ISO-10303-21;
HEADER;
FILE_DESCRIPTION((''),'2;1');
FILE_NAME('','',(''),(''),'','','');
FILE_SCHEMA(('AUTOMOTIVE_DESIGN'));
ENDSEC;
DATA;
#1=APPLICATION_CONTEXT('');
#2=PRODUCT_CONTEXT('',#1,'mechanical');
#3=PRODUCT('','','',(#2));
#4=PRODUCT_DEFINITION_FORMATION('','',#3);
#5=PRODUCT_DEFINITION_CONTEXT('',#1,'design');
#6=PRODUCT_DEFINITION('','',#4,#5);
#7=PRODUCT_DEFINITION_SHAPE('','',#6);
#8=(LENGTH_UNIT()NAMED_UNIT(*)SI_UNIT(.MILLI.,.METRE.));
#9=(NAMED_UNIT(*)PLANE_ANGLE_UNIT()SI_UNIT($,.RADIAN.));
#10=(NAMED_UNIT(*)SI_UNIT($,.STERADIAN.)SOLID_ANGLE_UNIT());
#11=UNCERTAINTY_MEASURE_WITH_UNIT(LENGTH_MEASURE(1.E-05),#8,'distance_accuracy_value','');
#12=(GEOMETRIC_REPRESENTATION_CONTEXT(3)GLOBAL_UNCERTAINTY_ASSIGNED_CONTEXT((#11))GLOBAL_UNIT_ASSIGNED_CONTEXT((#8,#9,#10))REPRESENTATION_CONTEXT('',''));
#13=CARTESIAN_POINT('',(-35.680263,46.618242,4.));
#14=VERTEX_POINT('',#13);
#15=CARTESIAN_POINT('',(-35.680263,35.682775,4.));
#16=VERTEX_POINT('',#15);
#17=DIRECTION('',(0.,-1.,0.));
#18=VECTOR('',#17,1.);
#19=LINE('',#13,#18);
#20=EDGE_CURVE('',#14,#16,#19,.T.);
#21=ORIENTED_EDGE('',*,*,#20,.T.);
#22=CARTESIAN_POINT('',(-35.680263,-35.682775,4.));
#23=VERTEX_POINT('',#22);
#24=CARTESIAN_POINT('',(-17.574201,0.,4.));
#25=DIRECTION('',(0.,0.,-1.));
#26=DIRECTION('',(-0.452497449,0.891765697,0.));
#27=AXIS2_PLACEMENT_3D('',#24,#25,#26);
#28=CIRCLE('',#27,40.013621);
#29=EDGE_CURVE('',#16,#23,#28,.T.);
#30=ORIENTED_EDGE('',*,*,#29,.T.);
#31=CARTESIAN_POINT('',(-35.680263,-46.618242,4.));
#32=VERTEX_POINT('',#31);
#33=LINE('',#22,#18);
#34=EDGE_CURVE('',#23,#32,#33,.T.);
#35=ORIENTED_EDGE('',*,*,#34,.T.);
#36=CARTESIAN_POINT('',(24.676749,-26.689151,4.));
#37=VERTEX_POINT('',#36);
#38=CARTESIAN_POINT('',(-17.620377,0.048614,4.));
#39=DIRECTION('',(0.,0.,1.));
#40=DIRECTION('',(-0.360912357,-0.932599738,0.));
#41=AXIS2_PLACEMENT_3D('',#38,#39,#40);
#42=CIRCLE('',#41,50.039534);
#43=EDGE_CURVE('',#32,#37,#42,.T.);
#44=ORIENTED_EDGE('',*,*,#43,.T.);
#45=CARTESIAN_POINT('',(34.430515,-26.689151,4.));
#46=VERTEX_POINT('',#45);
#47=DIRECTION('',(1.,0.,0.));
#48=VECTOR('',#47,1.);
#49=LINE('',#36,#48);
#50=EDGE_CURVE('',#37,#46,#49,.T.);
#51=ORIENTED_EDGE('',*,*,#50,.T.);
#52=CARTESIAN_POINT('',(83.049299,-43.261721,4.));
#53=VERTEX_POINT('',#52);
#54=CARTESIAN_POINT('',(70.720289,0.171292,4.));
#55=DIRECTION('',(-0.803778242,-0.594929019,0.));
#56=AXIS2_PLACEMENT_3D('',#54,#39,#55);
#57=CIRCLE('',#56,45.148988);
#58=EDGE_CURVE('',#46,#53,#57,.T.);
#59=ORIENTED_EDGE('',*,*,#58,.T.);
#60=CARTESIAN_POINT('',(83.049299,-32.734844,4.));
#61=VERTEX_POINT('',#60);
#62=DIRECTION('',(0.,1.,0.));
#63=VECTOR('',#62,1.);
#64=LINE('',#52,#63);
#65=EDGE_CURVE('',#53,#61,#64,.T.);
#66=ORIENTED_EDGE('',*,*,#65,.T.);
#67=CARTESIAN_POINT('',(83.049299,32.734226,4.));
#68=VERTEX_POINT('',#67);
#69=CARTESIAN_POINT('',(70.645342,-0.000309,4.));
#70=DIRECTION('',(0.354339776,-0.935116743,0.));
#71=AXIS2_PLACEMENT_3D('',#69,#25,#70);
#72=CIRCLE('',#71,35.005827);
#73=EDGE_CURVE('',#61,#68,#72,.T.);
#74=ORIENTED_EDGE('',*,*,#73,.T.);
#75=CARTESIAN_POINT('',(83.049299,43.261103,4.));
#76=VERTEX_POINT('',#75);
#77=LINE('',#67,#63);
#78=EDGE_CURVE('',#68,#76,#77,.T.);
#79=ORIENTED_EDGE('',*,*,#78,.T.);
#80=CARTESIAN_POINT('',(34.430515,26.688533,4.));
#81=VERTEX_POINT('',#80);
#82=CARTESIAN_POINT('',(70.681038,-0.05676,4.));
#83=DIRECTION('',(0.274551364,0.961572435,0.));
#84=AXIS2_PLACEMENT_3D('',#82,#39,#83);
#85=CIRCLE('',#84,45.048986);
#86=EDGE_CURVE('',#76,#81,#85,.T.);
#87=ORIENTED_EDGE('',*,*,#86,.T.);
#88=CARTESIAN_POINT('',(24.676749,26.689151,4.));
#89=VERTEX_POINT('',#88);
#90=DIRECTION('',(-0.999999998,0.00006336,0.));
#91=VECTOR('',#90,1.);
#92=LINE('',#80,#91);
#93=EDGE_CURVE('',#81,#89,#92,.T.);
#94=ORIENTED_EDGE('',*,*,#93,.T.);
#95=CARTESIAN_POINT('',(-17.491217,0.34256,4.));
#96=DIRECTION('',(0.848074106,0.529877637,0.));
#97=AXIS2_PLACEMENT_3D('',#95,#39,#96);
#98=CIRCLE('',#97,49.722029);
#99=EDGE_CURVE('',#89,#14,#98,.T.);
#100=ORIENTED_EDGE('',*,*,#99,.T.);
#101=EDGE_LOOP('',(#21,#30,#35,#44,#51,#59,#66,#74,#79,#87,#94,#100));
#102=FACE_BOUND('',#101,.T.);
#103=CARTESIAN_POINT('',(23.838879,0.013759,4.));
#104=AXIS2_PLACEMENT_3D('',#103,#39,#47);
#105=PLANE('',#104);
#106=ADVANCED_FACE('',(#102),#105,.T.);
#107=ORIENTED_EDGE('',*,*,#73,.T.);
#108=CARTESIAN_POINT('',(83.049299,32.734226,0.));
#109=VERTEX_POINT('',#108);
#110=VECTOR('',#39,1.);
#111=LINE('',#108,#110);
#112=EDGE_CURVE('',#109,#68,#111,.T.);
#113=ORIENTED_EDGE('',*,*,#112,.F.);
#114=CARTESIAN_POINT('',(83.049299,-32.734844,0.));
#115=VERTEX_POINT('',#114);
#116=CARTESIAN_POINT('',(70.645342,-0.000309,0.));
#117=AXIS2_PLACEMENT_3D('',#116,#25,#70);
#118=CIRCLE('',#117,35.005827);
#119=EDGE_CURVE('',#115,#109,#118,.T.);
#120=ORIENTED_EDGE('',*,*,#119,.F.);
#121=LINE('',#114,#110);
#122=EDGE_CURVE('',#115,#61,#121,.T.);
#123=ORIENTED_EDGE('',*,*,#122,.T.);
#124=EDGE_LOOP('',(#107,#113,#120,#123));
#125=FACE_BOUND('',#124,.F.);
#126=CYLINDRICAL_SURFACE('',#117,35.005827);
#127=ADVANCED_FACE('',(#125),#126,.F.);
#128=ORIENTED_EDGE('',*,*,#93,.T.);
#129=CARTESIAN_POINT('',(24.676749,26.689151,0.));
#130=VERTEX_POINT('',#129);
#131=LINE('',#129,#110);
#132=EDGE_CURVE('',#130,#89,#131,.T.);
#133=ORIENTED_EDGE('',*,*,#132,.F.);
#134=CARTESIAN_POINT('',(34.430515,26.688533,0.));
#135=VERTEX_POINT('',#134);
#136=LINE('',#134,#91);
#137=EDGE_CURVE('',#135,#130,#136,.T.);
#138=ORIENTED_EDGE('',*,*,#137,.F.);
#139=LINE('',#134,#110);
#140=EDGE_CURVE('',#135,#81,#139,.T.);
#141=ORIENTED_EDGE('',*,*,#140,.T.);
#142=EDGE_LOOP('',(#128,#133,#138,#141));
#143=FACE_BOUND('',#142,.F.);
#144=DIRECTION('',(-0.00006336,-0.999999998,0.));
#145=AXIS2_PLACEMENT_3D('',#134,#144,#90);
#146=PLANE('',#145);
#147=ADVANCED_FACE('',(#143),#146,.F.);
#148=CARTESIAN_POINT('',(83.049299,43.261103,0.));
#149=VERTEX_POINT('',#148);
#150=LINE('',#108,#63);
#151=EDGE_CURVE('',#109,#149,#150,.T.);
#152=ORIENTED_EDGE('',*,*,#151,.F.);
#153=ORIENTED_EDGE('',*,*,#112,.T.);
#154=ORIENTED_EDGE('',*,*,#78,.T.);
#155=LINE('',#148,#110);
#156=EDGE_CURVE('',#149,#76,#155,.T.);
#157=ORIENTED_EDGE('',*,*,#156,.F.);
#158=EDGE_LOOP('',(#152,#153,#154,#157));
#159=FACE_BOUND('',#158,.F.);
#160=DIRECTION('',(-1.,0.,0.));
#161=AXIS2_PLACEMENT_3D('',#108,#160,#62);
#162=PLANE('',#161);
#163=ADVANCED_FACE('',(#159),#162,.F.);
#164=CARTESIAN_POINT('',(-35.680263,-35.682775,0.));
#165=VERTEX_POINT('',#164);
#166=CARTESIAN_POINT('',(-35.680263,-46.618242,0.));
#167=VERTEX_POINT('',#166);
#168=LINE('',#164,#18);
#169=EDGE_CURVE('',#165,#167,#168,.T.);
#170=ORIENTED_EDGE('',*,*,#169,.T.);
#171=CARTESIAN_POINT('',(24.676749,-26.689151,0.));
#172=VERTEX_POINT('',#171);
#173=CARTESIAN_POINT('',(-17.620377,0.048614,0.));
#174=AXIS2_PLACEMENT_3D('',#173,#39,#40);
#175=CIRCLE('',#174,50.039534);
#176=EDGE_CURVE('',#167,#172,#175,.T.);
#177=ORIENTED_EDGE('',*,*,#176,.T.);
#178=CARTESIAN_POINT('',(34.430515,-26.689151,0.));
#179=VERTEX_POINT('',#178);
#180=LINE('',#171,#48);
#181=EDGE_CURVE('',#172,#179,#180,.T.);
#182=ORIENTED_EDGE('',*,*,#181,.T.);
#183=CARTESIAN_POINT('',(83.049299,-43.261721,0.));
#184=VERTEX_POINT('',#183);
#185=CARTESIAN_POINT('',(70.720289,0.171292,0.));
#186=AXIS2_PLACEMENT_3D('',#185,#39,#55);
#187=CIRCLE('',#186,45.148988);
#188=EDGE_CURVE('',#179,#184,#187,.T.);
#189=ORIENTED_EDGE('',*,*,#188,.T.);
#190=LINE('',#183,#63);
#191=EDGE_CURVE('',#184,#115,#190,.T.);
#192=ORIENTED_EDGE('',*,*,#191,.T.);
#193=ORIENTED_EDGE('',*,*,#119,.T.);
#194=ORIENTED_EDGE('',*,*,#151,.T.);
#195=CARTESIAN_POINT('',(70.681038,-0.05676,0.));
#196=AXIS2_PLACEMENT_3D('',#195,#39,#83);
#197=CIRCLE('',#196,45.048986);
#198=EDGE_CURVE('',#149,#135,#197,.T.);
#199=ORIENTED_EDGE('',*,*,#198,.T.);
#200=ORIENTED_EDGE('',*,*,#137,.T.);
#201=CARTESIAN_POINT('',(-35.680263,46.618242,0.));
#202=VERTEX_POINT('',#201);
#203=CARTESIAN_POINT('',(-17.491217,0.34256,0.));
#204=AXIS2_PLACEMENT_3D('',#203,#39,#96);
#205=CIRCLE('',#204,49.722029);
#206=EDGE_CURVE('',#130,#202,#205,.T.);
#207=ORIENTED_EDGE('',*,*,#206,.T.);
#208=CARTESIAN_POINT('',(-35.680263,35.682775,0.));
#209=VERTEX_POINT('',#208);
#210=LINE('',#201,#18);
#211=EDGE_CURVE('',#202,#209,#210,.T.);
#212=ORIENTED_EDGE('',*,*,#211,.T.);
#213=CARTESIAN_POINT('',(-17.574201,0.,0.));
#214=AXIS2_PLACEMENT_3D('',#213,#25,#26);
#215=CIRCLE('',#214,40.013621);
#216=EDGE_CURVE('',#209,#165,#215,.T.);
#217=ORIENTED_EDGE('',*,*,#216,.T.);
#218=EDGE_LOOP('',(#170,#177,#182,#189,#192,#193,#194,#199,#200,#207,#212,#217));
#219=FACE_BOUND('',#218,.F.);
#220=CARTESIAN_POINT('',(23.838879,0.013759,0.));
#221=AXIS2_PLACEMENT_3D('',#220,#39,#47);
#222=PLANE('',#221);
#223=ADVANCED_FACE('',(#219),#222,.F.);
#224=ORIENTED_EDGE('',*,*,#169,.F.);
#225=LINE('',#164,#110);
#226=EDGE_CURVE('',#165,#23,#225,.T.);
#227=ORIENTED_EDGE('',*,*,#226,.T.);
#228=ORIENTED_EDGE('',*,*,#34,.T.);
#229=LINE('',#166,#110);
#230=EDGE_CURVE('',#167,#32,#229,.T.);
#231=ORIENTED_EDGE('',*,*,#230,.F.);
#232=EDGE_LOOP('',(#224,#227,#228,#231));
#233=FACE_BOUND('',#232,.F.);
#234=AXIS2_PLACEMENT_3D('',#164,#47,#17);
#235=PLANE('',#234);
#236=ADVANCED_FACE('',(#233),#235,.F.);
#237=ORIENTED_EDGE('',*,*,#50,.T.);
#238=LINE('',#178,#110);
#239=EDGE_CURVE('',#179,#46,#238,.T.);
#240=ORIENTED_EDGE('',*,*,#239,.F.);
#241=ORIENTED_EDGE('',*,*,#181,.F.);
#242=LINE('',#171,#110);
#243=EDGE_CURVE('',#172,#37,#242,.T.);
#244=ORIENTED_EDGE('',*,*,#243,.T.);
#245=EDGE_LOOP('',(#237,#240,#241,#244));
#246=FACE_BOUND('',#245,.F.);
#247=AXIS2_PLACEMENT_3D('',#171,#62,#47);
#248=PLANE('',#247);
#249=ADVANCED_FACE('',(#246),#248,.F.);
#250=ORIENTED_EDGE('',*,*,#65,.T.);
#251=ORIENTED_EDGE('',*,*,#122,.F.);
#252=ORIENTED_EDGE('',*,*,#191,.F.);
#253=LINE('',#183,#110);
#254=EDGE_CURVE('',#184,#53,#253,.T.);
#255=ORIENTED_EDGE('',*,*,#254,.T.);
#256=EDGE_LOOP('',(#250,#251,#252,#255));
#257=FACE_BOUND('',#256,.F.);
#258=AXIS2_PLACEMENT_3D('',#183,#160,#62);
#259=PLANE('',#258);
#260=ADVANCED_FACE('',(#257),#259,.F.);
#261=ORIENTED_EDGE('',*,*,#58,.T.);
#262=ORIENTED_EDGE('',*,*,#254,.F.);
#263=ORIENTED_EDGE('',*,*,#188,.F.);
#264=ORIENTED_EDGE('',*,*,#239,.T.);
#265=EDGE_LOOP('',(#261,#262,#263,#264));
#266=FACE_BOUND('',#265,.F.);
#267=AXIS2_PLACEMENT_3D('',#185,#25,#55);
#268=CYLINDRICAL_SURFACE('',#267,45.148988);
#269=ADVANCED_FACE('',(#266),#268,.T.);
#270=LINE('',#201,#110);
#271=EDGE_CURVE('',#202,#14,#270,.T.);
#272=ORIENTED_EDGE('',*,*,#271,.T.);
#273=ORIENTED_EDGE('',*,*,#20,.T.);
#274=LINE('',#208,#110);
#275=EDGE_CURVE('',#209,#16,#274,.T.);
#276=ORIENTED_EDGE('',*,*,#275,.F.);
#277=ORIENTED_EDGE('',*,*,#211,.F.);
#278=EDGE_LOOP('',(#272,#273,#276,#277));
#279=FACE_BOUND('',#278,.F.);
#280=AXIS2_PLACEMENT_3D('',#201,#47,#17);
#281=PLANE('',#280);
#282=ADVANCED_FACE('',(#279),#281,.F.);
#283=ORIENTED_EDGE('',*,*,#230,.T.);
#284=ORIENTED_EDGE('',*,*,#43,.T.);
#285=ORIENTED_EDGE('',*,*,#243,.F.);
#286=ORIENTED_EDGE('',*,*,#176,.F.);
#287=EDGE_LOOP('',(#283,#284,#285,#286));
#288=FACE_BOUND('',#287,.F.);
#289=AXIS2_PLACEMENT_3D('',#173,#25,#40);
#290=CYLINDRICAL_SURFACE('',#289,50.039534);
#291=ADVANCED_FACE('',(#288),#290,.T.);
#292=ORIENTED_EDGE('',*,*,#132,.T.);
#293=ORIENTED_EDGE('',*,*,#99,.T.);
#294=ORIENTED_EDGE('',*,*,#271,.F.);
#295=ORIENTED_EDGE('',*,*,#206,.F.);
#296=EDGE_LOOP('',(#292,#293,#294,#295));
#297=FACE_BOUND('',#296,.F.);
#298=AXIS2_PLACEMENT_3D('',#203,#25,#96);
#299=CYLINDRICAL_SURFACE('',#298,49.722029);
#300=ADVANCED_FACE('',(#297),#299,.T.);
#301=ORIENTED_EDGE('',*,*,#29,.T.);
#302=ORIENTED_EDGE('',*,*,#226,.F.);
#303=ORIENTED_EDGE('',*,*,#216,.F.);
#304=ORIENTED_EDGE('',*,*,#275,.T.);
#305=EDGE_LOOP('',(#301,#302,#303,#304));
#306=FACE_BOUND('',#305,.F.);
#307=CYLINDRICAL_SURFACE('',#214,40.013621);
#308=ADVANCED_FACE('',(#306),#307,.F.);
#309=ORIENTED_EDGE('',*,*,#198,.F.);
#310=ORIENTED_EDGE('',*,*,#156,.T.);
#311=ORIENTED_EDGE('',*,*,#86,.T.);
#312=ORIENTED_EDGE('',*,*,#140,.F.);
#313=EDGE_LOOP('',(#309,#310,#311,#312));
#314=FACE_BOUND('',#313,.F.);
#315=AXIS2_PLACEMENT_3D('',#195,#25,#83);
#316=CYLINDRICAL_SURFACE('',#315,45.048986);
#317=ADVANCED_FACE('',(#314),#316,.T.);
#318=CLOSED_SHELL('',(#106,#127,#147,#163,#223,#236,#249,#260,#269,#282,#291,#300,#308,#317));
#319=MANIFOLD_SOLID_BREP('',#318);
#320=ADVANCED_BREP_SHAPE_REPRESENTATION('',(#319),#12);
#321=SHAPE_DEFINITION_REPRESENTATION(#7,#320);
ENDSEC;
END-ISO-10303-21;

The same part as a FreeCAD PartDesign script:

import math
import FreeCAD as App
import Part
import Sketcher
from FreeCAD import Vector

doc = App.newDocument("Part")
body = doc.addObject("PartDesign::Body", "Body")

sketch1 = body.newObject("Sketcher::SketchObject", "Sketch")
sketch1.AttachmentSupport = (doc.getObject("XY_Plane"), [""])
sketch1.MapMode = "FlatFace"
sketch1.addGeometry([
    Part.LineSegment(Vector(-35.680263, -35.682775, 0), Vector(-35.680263, -46.618242, 0)),
    Part.ArcOfCircle(Part.Circle(Vector(-17.620377, 0.048614, 0), Vector(0, 0, 1), 50.039534), math.radians(-111.156238), math.radians(-32.298676)),
    Part.LineSegment(Vector(24.676749, -26.689151, 0), Vector(34.430515, -26.689151, 0)),
    Part.ArcOfCircle(Part.Circle(Vector(70.720289, 0.171292, 0), Vector(0, 0, 1), 45.148988), math.radians(-143.492428), math.radians(-74.152736)),
    Part.LineSegment(Vector(83.049299, -43.261721, 0), Vector(83.049299, -32.734844, 0)),
    Part.ArcOfCircle(Part.Circle(Vector(70.645342, -0.000309, 0), Vector(0, 0, 1), 35.005827), math.radians(69.247014), math.radians(290.752986)),
    Part.LineSegment(Vector(83.049299, 32.734226, 0), Vector(83.049299, 43.261103, 0)),
    Part.ArcOfCircle(Part.Circle(Vector(70.681038, -0.05676, 0), Vector(0, 0, 1), 45.048986), math.radians(74.06472), math.radians(143.580444)),
    Part.LineSegment(Vector(34.430515, 26.688533, 0), Vector(24.676749, 26.689151, 0)),
    Part.ArcOfCircle(Part.Circle(Vector(-17.491217, 0.34256, 0), Vector(0, 0, 1), 49.722029), math.radians(31.997188), math.radians(111.457726)),
    Part.LineSegment(Vector(-35.680263, 46.618242, 0), Vector(-35.680263, 35.682775, 0)),
    Part.ArcOfCircle(Part.Circle(Vector(-17.574201, 0, 0), Vector(0, 0, 1), 40.013621), math.radians(-116.904031), math.radians(116.904031)),
], False)
sketch1.addConstraint([
    Sketcher.Constraint("Coincident", 0, 2, 1, 1),
    Sketcher.Constraint("Coincident", 1, 2, 2, 1),
    Sketcher.Constraint("Coincident", 2, 2, 3, 1),
    Sketcher.Constraint("Coincident", 3, 2, 4, 1),
    Sketcher.Constraint("Coincident", 4, 2, 5, 2),
    Sketcher.Constraint("Coincident", 5, 1, 6, 1),
    Sketcher.Constraint("Coincident", 6, 2, 7, 1),
    Sketcher.Constraint("Coincident", 7, 2, 8, 1),
    Sketcher.Constraint("Coincident", 8, 2, 9, 1),
    Sketcher.Constraint("Coincident", 9, 2, 10, 1),
    Sketcher.Constraint("Coincident", 10, 2, 11, 2),
    Sketcher.Constraint("Coincident", 11, 1, 0, 1),
    Sketcher.Constraint("Vertical", 0),
    Sketcher.Constraint("Horizontal", 2),
    Sketcher.Constraint("Vertical", 4),
    Sketcher.Constraint("Vertical", 6),
    Sketcher.Constraint("Vertical", 10),
    Sketcher.Constraint("Symmetric", 1, 2, 8, 2, -1),
    Sketcher.Constraint("Symmetric", 0, 2, 9, 2, -1),
    Sketcher.Constraint("PointOnObject", 11, 3, -1),
    Sketcher.Constraint("Vertical", 4, 2, 5, 1),
    Sketcher.Constraint("Vertical", 2, 2, 7, 2),
    Sketcher.Constraint("Equal", 4, 6),
    Sketcher.Constraint("Radius", 9, 49.722029),
    Sketcher.Constraint("Radius", 11, 40.013621),
    Sketcher.Constraint("Radius", 1, 50.039534),
    Sketcher.Constraint("Radius", 3, 45.148988),
    Sketcher.Constraint("Radius", 5, 35.005827),
    Sketcher.Constraint("Radius", 7, 45.048986),
    Sketcher.Constraint("DistanceX", 11, 3, -1, 1, 17.574201),
    Sketcher.Constraint("DistanceX", -1, 1, 3, 2, 83.049299),
    Sketcher.Constraint("DistanceY", 5, 3, 3, 3, 0.171601),
    Sketcher.Constraint("DistanceY", 0, 2, 9, 3, 46.960802),
    Sketcher.Constraint("DistanceX", 0, 2, 7, 3, 106.361301),
    Sketcher.Constraint("DistanceX", 2, 1, 2, 2, 9.753766),
    Sketcher.Constraint("DistanceY", 0, 2, 0, 1, 10.935467),
    Sketcher.Constraint("DistanceY", 4, 1, 4, 2, 10.526877),
    Sketcher.Constraint("DistanceX", -1, 1, 3, 3, 70.720289),
    Sketcher.Constraint("DistanceY", 5, 3, -1, 1, 0.000309),
    Sketcher.Constraint("DistanceX", -1, 1, 7, 3, 70.681038),
])
pad1 = body.newObject("PartDesign::Pad", "Pad")
pad1.Profile = sketch1
pad1.Length = 4

doc.recompute()
